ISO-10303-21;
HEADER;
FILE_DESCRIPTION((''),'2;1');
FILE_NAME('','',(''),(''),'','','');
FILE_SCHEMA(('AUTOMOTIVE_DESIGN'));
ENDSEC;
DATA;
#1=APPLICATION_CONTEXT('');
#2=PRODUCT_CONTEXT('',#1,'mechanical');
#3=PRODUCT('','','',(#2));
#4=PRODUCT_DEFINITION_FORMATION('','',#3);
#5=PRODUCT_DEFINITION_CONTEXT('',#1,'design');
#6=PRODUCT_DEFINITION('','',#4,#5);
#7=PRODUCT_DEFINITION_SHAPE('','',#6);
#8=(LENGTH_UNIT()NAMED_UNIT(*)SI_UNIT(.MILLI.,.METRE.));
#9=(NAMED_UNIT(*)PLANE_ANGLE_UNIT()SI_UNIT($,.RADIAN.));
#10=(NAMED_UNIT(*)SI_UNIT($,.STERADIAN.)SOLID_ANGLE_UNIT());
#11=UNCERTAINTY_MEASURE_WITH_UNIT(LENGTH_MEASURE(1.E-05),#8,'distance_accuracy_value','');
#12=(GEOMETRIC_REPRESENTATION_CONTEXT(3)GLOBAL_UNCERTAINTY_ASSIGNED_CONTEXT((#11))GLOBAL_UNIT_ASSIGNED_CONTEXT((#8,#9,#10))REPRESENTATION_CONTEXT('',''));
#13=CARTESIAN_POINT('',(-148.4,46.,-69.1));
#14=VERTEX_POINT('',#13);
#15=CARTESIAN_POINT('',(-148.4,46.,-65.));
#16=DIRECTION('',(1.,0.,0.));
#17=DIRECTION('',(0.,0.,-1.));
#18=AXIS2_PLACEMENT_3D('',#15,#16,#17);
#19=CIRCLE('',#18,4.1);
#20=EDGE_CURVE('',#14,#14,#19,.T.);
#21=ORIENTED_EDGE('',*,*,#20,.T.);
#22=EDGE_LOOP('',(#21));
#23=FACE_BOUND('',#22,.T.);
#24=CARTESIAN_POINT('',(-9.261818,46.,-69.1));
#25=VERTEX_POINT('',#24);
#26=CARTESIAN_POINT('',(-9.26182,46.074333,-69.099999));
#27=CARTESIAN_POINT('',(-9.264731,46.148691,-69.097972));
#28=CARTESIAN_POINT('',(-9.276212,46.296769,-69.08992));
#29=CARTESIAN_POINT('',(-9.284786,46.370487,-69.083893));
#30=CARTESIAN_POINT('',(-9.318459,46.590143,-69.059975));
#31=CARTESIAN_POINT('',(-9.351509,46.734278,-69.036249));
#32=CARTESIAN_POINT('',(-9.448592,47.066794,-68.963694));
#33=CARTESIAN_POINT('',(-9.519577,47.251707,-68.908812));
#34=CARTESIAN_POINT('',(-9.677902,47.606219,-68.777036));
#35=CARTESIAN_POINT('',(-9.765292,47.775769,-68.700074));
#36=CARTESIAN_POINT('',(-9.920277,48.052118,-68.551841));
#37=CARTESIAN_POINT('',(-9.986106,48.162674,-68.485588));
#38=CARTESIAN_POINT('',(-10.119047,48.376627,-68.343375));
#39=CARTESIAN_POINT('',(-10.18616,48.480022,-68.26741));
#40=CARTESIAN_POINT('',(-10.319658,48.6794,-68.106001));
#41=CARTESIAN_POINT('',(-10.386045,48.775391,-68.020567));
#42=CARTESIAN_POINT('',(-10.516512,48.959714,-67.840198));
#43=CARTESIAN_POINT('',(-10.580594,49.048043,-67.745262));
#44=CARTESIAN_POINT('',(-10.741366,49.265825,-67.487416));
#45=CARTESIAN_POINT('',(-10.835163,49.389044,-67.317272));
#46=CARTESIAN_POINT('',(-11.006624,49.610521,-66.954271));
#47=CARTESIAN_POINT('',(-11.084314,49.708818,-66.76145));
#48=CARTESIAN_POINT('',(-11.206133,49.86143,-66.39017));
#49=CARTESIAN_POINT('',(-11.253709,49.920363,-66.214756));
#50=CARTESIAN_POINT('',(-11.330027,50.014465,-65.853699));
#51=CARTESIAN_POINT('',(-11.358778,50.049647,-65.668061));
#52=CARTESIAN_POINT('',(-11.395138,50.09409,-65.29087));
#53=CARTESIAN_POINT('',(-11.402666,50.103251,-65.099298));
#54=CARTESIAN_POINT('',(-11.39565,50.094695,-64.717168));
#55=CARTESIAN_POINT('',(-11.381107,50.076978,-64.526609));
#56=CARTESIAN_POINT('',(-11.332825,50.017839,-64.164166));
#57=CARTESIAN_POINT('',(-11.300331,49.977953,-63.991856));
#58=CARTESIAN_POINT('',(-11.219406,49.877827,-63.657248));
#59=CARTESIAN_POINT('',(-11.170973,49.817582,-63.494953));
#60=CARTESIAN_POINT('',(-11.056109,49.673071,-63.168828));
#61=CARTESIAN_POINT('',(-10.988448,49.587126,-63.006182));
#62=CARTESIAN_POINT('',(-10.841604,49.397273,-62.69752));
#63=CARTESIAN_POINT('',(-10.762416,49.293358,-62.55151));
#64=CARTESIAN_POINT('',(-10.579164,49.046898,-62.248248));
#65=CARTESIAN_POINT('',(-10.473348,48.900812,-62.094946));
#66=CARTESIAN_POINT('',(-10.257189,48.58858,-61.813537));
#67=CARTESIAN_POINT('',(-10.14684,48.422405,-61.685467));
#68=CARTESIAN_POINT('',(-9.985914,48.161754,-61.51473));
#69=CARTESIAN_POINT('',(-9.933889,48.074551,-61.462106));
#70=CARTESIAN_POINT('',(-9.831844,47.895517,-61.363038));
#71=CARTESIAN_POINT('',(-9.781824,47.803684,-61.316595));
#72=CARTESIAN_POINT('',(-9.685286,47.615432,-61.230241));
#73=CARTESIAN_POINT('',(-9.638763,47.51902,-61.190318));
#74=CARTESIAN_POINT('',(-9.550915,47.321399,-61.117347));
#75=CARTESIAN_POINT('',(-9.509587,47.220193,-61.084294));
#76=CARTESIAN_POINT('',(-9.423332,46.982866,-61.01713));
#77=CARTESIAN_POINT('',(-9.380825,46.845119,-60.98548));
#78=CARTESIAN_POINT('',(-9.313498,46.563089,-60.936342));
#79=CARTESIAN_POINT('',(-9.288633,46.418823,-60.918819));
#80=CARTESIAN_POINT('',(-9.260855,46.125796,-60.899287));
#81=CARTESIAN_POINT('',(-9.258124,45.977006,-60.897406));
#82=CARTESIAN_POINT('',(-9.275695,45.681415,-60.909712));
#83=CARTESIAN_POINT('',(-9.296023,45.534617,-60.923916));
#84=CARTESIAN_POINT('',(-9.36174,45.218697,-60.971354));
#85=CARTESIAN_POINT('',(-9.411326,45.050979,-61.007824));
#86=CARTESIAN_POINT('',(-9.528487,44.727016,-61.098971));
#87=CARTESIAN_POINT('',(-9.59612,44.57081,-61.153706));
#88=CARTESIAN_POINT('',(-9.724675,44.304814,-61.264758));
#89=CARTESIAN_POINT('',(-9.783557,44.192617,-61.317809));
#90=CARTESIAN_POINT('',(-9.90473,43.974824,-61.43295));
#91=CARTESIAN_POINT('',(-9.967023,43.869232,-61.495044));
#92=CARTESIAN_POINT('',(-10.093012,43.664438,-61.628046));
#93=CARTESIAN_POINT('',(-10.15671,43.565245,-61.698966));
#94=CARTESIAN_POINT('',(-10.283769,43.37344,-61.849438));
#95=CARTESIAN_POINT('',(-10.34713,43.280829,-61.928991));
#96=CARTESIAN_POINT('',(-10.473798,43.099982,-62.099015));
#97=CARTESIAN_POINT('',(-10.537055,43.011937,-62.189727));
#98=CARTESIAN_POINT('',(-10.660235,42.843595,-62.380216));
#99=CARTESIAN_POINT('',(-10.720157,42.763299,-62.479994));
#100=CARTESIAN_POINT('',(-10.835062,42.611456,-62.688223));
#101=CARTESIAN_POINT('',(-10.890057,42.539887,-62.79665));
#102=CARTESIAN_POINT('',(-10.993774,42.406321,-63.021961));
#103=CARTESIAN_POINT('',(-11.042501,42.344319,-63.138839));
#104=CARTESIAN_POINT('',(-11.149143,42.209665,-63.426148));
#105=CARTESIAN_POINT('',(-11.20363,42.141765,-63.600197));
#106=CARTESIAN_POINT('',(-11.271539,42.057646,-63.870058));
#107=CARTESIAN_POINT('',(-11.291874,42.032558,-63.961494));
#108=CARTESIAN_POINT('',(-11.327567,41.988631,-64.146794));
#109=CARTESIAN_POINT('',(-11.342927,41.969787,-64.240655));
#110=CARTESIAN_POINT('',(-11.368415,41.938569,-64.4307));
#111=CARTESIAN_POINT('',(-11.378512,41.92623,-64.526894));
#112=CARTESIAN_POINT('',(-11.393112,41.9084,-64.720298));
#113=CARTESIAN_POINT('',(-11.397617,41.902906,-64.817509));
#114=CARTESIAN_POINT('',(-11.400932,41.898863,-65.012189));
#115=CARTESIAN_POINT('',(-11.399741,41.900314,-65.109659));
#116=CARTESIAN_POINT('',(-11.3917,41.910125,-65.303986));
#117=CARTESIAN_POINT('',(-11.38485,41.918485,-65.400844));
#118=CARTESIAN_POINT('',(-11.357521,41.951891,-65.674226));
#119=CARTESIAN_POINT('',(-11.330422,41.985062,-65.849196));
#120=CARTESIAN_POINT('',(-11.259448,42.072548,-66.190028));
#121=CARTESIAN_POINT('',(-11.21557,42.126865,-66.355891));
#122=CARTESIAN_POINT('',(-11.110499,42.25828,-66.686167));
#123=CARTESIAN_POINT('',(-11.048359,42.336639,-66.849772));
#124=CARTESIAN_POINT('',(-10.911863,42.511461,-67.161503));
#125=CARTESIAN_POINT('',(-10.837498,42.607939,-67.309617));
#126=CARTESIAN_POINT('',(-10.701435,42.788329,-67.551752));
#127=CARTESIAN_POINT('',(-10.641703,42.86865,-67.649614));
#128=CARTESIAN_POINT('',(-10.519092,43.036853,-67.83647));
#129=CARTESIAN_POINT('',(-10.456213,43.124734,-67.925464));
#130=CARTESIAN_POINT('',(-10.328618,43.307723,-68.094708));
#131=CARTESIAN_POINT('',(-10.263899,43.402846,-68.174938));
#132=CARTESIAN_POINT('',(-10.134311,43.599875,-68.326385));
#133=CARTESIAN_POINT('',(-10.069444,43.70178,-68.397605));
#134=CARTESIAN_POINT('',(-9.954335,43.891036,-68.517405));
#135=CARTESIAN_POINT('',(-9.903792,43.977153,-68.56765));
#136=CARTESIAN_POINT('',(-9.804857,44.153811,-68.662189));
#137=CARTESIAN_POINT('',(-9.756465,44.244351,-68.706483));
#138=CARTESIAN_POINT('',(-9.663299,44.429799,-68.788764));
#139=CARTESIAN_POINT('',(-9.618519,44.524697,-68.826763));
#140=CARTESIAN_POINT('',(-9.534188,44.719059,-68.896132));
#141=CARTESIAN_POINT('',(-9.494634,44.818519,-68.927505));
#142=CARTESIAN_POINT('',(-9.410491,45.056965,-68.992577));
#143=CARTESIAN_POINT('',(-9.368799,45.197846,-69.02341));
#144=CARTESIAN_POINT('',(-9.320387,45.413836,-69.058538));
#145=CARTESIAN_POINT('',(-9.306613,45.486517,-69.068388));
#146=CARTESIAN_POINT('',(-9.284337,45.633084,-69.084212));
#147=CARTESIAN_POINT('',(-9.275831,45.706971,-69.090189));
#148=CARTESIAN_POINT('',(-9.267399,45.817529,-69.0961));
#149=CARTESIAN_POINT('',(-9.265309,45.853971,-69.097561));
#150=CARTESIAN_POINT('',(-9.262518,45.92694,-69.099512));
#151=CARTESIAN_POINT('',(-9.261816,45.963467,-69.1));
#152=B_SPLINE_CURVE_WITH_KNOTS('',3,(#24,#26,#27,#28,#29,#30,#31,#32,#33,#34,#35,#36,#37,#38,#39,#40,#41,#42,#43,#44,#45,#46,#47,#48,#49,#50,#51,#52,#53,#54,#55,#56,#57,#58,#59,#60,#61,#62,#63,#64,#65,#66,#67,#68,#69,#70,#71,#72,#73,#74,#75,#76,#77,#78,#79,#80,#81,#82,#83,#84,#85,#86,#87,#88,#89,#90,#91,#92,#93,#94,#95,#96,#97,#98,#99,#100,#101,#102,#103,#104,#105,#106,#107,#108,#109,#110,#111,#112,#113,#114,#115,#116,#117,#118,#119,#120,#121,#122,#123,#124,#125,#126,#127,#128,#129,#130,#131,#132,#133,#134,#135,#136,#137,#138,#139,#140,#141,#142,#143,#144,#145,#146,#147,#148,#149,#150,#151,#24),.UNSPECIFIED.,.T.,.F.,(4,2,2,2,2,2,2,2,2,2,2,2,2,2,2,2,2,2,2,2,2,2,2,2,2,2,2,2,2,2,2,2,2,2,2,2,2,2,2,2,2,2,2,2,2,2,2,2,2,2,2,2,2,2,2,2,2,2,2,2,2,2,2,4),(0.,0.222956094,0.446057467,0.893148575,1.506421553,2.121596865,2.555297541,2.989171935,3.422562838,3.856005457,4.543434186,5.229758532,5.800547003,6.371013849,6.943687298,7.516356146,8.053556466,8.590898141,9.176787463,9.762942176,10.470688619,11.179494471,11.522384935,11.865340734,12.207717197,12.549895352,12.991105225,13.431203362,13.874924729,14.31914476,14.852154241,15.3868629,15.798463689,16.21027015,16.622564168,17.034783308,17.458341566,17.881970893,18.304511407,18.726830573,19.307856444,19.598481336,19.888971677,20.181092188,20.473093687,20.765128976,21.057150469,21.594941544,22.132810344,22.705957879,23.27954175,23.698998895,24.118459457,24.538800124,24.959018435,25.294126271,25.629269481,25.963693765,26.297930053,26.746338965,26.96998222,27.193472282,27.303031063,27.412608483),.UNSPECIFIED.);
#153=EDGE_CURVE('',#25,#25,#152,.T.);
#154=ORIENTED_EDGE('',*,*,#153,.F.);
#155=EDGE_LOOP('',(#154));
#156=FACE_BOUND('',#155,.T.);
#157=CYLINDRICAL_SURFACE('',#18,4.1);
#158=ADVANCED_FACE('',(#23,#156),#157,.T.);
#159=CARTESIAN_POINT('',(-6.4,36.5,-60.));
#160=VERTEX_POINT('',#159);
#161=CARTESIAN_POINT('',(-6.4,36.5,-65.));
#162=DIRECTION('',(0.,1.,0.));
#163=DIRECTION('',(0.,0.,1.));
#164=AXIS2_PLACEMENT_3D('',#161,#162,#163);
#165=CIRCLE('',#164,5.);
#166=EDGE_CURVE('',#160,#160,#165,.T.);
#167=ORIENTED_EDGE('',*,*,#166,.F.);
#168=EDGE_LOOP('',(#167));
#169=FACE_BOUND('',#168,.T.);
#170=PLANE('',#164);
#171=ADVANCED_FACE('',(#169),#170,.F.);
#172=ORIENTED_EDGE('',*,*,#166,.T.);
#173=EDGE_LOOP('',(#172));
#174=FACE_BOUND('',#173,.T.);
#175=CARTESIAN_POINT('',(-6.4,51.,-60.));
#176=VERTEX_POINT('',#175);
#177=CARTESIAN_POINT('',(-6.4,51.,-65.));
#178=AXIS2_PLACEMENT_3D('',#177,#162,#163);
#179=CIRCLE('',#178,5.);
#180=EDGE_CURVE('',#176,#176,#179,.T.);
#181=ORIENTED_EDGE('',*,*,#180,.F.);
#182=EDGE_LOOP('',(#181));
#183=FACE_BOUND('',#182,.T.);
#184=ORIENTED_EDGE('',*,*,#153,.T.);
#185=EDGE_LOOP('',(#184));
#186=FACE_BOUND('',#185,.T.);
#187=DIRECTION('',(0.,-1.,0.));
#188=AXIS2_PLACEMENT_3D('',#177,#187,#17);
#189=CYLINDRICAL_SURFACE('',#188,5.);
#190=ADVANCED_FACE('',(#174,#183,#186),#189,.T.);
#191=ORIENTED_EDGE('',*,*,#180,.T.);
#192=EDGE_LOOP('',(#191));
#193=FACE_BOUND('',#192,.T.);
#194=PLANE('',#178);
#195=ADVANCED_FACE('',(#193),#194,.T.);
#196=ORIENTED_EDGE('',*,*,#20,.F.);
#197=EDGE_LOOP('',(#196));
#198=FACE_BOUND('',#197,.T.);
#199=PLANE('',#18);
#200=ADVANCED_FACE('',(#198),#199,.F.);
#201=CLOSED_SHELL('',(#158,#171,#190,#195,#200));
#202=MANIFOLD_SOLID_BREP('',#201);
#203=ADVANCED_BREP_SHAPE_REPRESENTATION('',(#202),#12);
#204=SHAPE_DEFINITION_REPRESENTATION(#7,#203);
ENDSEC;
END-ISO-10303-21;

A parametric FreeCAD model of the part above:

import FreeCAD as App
import Part
import Sketcher
Q = App.Units.Quantity

doc = App.newDocument("Part")
body = doc.addObject("PartDesign::Body", "Body")

# Sketch on XZ plane
sketch1 = body.newObject("Sketcher::SketchObject", "Sketch")
sketch1.AttachmentSupport = (doc.getObject("XZ_Plane"), [""])
sketch1.MapMode = "FlatFace"
sketch1.AttachmentOffset = App.Placement(App.Vector(0, 0, -36.5), App.Rotation())
sketch1.addGeometry(Part.Circle(App.Vector(-6, -65, 0), App.Vector(0, 0, 1), 5), False)
sketch1.addConstraint([
    Sketcher.Constraint("Diameter", 0, Q("10 mm")),
    Sketcher.Constraint("DistanceY", 0, 3, -1, 1, Q("65 mm")),
    Sketcher.Constraint("DistanceX", 0, 3, -1, 1, Q("6.4 mm")),
])
pad1 = body.newObject("PartDesign::Pad", "Pad")
pad1.Profile = sketch1
pad1.Length = 14.5
pad1.Reversed = True

# Sketch on YZ plane
sketch2 = body.newObject("Sketcher::SketchObject", "Sketch001")
sketch2.AttachmentSupport = (doc.getObject("YZ_Plane"), [""])
sketch2.MapMode = "FlatFace"
sketch2.AttachmentOffset = App.Placement(App.Vector(0, 0, -6.4), App.Rotation())
sketch2.addGeometry(Part.Circle(App.Vector(46, -65, 0), App.Vector(0, 0, 1), 4.1), False)
sketch2.addConstraint([
    Sketcher.Constraint("Diameter", 0, Q("8.2 mm")),
    Sketcher.Constraint("DistanceX", -1, 1, 0, 3, Q("46 mm")),
    Sketcher.Constraint("DistanceY", 0, 3, -1, 1, Q("65 mm")),
])
pad2 = body.newObject("PartDesign::Pad", "Pad001")
pad2.Profile = sketch2
pad2.Length = 142
pad2.Reversed = True

doc.recompute()
